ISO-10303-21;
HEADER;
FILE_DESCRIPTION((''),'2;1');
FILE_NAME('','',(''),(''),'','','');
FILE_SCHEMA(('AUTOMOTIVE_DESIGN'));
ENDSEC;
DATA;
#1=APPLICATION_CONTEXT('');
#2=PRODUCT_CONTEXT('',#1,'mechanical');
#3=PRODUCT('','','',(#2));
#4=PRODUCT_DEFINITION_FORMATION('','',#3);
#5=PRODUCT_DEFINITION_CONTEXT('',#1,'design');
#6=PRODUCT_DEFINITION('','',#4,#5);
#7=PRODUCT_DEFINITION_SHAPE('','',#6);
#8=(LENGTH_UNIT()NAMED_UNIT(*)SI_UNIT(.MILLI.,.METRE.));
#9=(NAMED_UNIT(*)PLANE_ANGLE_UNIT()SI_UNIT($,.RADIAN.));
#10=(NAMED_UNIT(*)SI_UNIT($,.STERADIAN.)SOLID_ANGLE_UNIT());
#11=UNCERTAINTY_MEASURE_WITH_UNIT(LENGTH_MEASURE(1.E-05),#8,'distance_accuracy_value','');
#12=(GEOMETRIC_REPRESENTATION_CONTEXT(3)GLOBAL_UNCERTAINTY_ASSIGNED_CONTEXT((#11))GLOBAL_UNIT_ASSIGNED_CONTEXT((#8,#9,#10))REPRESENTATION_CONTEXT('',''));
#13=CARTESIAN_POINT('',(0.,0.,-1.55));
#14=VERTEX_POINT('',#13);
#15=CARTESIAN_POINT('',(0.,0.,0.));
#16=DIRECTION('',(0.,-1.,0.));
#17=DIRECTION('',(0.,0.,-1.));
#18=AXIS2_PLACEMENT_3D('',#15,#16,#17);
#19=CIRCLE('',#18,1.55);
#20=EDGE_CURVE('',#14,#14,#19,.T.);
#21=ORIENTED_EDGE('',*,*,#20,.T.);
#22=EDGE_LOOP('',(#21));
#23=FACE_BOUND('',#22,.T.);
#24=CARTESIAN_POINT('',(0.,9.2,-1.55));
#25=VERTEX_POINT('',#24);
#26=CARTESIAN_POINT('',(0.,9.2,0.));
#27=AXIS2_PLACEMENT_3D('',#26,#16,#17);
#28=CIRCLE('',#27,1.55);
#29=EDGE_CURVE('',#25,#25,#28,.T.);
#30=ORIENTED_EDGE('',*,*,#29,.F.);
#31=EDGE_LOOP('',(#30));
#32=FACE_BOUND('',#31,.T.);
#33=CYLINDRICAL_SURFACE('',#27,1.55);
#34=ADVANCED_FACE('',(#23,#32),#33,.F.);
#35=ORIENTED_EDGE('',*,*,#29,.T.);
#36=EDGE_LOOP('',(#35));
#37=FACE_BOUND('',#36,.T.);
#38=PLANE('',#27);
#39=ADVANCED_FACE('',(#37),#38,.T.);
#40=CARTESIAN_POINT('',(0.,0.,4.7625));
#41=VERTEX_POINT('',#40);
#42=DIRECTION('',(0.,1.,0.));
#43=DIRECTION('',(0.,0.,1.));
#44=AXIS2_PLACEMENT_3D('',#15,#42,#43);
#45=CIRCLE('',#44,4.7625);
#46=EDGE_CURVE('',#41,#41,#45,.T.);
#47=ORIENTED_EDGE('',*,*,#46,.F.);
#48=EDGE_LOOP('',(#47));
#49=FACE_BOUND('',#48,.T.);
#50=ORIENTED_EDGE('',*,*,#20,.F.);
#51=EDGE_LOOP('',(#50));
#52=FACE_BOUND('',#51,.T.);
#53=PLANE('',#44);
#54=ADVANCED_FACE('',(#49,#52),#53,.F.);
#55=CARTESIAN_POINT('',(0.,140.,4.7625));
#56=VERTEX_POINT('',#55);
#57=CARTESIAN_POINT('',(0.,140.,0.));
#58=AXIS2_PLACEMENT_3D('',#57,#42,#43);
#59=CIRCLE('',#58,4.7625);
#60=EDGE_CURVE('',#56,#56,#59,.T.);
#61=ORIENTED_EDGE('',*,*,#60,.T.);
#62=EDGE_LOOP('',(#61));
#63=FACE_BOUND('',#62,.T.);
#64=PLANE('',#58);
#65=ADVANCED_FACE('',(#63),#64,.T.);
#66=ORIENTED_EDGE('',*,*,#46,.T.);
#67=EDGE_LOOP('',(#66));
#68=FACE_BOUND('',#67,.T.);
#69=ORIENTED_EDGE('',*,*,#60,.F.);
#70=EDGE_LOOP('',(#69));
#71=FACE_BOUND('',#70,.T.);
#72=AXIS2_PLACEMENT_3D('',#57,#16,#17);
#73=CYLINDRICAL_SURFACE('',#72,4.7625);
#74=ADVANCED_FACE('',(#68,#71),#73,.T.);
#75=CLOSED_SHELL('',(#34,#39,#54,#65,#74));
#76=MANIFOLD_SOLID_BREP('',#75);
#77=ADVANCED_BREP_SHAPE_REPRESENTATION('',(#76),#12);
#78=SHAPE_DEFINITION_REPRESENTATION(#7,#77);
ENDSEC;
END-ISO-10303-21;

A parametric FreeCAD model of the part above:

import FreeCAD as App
import Part
import Sketcher
from FreeCAD import Vector

doc = App.newDocument("Part")
body = doc.addObject("PartDesign::Body", "Body")

sketch1 = doc.addObject("Sketcher::SketchObject", "Sketch")
body.addObject(sketch1)
sketch1.AttachmentSupport = (doc.XZ_Plane, [""])
sketch1.MapMode = "FlatFace"
sketch1.addGeometry(Part.Circle(Vector(0, 0, 0), Vector(0, 0, 1), 4.8), False)
sketch1.addConstraint([
    Sketcher.Constraint("Coincident", 0, 3, -1, 1),
    Sketcher.Constraint("Diameter", 0, 9.525),
])
pad1 = doc.addObject("PartDesign::Pad", "Pad")
body.addObject(pad1)
pad1.Profile = sketch1
pad1.Length = 140
pad1.Reversed = True

sketch2 = doc.addObject("Sketcher::SketchObject", "Sketch001")
body.addObject(sketch2)
sketch2.AttachmentSupport = (doc.XZ_Plane, [""])
sketch2.MapMode = "FlatFace"
sketch2.addGeometry(Part.Circle(Vector(0, 0, 0), Vector(0, 0, 1), 1.6), False)
sketch2.addConstraint([
    Sketcher.Constraint("Coincident", 0, 3, -1, 1),
    Sketcher.Constraint("Diameter", 0, 3.1),
])
pocket1 = doc.addObject("PartDesign::Pocket", "Pocket")
body.addObject(pocket1)
pocket1.Profile = sketch2
pocket1.Length = 9.2

doc.recompute()
